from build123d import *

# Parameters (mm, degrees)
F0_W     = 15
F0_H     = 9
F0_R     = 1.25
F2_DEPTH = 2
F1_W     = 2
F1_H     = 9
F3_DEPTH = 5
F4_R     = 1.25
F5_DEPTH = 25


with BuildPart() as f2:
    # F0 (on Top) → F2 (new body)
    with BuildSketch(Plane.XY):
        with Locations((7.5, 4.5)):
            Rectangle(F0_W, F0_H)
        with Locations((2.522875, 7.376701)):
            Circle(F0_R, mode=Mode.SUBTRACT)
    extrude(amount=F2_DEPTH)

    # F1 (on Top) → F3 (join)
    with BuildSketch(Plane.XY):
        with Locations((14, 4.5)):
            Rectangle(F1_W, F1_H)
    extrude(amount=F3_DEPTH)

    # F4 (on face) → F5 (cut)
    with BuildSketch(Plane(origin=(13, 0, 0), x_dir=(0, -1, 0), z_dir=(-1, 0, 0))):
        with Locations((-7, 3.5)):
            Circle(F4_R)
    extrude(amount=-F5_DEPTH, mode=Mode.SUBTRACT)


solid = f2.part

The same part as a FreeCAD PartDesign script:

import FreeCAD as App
import Part
import Sketcher
from FreeCAD import Vector


def add_polygon(sketch, points):
    """Adds a closed chain of lines whose ends are joined by coincident constraints."""
    first, n = sketch.GeometryCount, len(points)
    for a, b in zip(points, points[1:] + points[:1]):
        sketch.addGeometry(Part.LineSegment(App.Vector(*a, 0), App.Vector(*b, 0)), False)
    for i in range(n):
        sketch.addConstraint(Sketcher.Constraint("Coincident", first + i, 2, first + (i + 1) % n, 1))

doc = App.newDocument("Part")
body = doc.addObject("PartDesign::Body", "Body")

# Sketch on XY plane
sketch1 = doc.addObject("Sketcher::SketchObject", "Sketch")
body.addObject(sketch1)
sketch1.AttachmentSupport = (doc.XY_Plane, [""])
sketch1.MapMode = "FlatFace"
add_polygon(sketch1, [(0, 9), (0, 0), (15, 0), (15, 9)])  # lines 0-3
sketch1.addGeometry(Part.Circle(Vector(2.5, 7.4, 0), Vector(0, 0, 1), 1.2), False)  # 4
sketch1.addConstraint(Sketcher.Constraint("Vertical", 0))
sketch1.addConstraint(Sketcher.Constraint("Horizontal", 1))
sketch1.addConstraint(Sketcher.Constraint("Vertical", 2))
sketch1.addConstraint(Sketcher.Constraint("Horizontal", 3))
sketch1.addConstraint(Sketcher.Constraint("Coincident", 0, 2, -1, 1))
sketch1.addConstraint(Sketcher.Constraint("Diameter", 4, 2.5))
sketch1.addConstraint(Sketcher.Constraint("DistanceX", 1, 1, 1, 2, 15.0))
sketch1.addConstraint(Sketcher.Constraint("DistanceY", 0, 2, 0, 1, 9.0))
sketch1.addConstraint(Sketcher.Constraint("DistanceY", -1, 1, 4, 3, 7.376701))
sketch1.addConstraint(Sketcher.Constraint("DistanceX", -1, 1, 4, 3, 2.522875))
pad1 = doc.addObject("PartDesign::Pad", "Pad")
body.addObject(pad1)
pad1.Profile = sketch1
pad1.Length = 2

# Sketch on XY plane
sketch2 = doc.addObject("Sketcher::SketchObject", "Sketch001")
body.addObject(sketch2)
sketch2.AttachmentSupport = (doc.XY_Plane, [""])
sketch2.MapMode = "FlatFace"
add_polygon(sketch2, [(13, 9), (13, 0), (15, 0), (15, 9)])  # lines 0-3
sketch2.addConstraint(Sketcher.Constraint("Vertical", 0))
sketch2.addConstraint(Sketcher.Constraint("Horizontal", 1))
sketch2.addConstraint(Sketcher.Constraint("Vertical", 2))
sketch2.addConstraint(Sketcher.Constraint("Horizontal", 3))
sketch2.addConstraint(Sketcher.Constraint("PointOnObject", 0, 2, -1))
sketch2.addConstraint(Sketcher.Constraint("DistanceX", 1, 1, 1, 2, 2.0))
sketch2.addConstraint(Sketcher.Constraint("DistanceY", 0, 2, 0, 1, 9.0))
sketch2.addConstraint(Sketcher.Constraint("DistanceX", -1, 1, 0, 2, 13.0))
pad2 = doc.addObject("PartDesign::Pad", "Pad001")
body.addObject(pad2)
pad2.Profile = sketch2
pad2.Length = 5

# Sketch on YZ plane
sketch3 = doc.addObject("Sketcher::SketchObject", "Sketch002")
body.addObject(sketch3)
sketch3.AttachmentSupport = (doc.YZ_Plane, [""])
sketch3.MapMode = "FlatFace"
sketch3.AttachmentOffset = App.Placement(Vector(0, 0, 13), App.Rotation())
sketch3.addGeometry(Part.Circle(Vector(7, 3.5, 0), Vector(0, 0, 1), 1.2), False)
sketch3.addConstraint(Sketcher.Constraint("Diameter", 0, 2.5))
sketch3.addConstraint(Sketcher.Constraint("DistanceX", -1, 1, 0, 3, 7.0))
sketch3.addConstraint(Sketcher.Constraint("DistanceY", -1, 1, 0, 3, 3.5))
pocket1 = doc.addObject("PartDesign::Pocket", "Pocket")
body.addObject(pocket1)
pocket1.Profile = sketch3
pocket1.Length = 25
pocket1.Reversed = True

doc.recompute()
